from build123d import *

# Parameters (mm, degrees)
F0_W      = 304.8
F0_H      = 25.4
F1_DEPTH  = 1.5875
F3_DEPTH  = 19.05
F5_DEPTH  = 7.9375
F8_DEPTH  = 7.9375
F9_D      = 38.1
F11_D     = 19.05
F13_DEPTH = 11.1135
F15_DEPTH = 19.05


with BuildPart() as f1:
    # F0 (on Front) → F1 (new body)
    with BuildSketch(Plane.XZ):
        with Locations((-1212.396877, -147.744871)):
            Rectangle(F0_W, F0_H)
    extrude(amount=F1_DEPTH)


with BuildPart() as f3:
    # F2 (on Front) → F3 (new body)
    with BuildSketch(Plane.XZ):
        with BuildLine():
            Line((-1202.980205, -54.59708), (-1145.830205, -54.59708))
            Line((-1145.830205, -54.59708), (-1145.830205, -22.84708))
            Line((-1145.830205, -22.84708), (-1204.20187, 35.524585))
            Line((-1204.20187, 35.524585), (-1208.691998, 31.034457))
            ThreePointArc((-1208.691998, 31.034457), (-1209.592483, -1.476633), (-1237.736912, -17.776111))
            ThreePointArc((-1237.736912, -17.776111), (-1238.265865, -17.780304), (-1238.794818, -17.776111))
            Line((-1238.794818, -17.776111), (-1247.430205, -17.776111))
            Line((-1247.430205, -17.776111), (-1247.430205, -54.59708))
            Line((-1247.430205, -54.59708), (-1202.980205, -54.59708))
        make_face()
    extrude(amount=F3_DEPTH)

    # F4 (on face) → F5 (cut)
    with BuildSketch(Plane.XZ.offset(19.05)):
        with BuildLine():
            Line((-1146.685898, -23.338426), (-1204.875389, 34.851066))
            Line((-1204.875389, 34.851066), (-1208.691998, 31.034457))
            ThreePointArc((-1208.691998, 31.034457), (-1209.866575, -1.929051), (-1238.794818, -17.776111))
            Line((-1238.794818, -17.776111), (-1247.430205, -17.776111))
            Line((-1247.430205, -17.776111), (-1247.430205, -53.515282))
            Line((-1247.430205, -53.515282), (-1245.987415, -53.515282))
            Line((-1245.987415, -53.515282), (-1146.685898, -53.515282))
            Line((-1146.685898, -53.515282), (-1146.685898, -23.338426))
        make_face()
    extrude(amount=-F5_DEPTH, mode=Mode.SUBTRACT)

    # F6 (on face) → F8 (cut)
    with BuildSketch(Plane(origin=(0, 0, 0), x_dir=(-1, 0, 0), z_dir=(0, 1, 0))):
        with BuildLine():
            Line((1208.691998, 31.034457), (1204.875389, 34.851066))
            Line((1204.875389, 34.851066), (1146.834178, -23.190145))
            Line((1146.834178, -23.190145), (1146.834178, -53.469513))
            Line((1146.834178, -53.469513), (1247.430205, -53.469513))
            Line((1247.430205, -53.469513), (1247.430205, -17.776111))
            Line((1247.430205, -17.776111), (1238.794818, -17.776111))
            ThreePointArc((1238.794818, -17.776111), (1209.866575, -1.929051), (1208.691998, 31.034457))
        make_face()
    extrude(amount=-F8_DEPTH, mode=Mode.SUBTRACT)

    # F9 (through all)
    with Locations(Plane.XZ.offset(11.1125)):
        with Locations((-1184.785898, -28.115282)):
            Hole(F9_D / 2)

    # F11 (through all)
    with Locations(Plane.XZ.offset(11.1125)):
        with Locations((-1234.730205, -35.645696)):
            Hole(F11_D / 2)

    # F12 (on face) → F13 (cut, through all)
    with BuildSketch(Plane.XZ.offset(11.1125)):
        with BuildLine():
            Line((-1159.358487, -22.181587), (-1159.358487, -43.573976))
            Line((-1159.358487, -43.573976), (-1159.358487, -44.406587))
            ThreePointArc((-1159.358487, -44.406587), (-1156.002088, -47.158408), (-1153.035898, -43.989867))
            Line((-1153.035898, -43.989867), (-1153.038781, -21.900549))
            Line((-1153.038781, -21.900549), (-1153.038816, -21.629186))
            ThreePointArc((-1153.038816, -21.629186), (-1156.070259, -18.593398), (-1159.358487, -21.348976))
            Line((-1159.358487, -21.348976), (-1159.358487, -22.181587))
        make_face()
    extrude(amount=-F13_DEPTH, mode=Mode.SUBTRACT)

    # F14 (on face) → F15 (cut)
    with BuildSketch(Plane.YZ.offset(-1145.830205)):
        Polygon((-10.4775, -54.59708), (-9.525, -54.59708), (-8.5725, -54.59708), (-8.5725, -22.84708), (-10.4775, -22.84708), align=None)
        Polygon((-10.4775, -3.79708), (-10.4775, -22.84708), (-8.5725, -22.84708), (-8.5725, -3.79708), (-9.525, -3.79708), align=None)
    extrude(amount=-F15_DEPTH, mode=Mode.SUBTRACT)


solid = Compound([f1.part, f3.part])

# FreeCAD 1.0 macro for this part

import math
import FreeCAD as App
import Part
import Sketcher

V = App.Vector
Q = App.Units.Quantity


def add_polygon(sketch, points):
    """Adds a closed chain of lines whose ends are joined by coincident constraints."""
    first, n = sketch.GeometryCount, len(points)
    for a, b in zip(points, points[1:] + points[:1]):
        sketch.addGeometry(Part.LineSegment(App.Vector(*a, 0), App.Vector(*b, 0)), False)
    for i in range(n):
        sketch.addConstraint(Sketcher.Constraint("Coincident", first + i, 2, first + (i + 1) % n, 1))

doc = App.newDocument("Part")
body = doc.addObject("PartDesign::Body", "Body")

sketch1 = doc.addObject("Sketcher::SketchObject", "Sketch")
body.addObject(sketch1)
sketch1.AttachmentSupport = (doc.XZ_Plane, [""])
sketch1.MapMode = "FlatFace"
add_polygon(sketch1, [(-1364.796877, -135.044871), (-1364.796877, -160.444871), (-1059.996877, -160.444871), (-1059.996877, -135.044871)])
sketch1.addConstraint(Sketcher.Constraint("Vertical", 0))
sketch1.addConstraint(Sketcher.Constraint("Horizontal", 1))
sketch1.addConstraint(Sketcher.Constraint("Vertical", 2))
sketch1.addConstraint(Sketcher.Constraint("Horizontal", 3))
sketch1.addConstraint(Sketcher.Constraint("DistanceX", 1, 1, 1, 2, Q("12 in")))
sketch1.addConstraint(Sketcher.Constraint("DistanceY", 0, 2, 0, 1, Q("1 in")))
sketch1.addConstraint(Sketcher.Constraint("DistanceY", 0, 2, -1, 1, Q("160.444871 mm")))
sketch1.addConstraint(Sketcher.Constraint("DistanceX", 0, 2, -1, 1, Q("1364.796877 mm")))
pad1 = doc.addObject("PartDesign::Pad", "Pad")
body.addObject(pad1)
pad1.Profile = sketch1
pad1.Length = Q("0.0625 in")
body2 = doc.addObject("PartDesign::Body", "Body001")

sketch2 = doc.addObject("Sketcher::SketchObject", "Sketch001")
body2.addObject(sketch2)
sketch2.AttachmentSupport = (doc.getObject("XZ_Plane001"), [""])
sketch2.MapMode = "FlatFace"
sketch2.addGeometry(Part.LineSegment(V(-1145.830205, -54.59708, 0), V(-1145.830205, -22.84708, 0)), False)
sketch2.addGeometry(Part.LineSegment(V(-1145.830205, -22.84708, 0), V(-1204.20187, 35.524585, 0)), False)
sketch2.addGeometry(Part.LineSegment(V(-1204.20187, 35.524585, 0), V(-1208.691998, 31.034457, 0)), False)
sketch2.addGeometry(Part.ArcOfCircle(Part.Circle(V(-1238.265865, 15.585572, 0), V(0, 0, 1), 33.365876), math.radians(-89.091645), math.radians(27.581801)), False)
sketch2.addGeometry(Part.ArcOfCircle(Part.Circle(V(-1238.265865, 15.585885, 0), V(0, 0, 1), 33.366189), math.radians(-90.908346), math.radians(-89.091654)), False)
sketch2.addGeometry(Part.LineSegment(V(-1238.794818, -17.776111, 0), V(-1247.430205, -17.776111, 0)), False)
sketch2.addGeometry(Part.LineSegment(V(-1247.430205, -17.776111, 0), V(-1247.430205, -54.59708, 0)), False)
sketch2.addGeometry(Part.LineSegment(V(-1247.430205, -54.59708, 0), V(-1145.830205, -54.59708, 0)), False)
sketch2.addConstraint(Sketcher.Constraint("Coincident", 0, 2, 1, 1))
sketch2.addConstraint(Sketcher.Constraint("Coincident", 1, 2, 2, 1))
sketch2.addConstraint(Sketcher.Constraint("Coincident", 2, 2, 3, 2))
sketch2.addConstraint(Sketcher.Constraint("Coincident", 3, 1, 4, 2))
sketch2.addConstraint(Sketcher.Constraint("Coincident", 4, 1, 5, 1))
sketch2.addConstraint(Sketcher.Constraint("Coincident", 5, 2, 6, 1))
sketch2.addConstraint(Sketcher.Constraint("Coincident", 6, 2, 7, 1))
sketch2.addConstraint(Sketcher.Constraint("Coincident", 7, 2, 0, 1))
sketch2.addConstraint(Sketcher.Constraint("Vertical", 0))
sketch2.addConstraint(Sketcher.Constraint("Horizontal", 5))
sketch2.addConstraint(Sketcher.Constraint("Vertical", 6))
sketch2.addConstraint(Sketcher.Constraint("Horizontal", 7))
sketch2.addConstraint(Sketcher.Constraint("DistanceX", 7, 1, 7, 2, Q("4 in")))
sketch2.addConstraint(Sketcher.Constraint("DistanceY", 0, 1, 0, 2, Q("1.25 in")))
sketch2.addConstraint(Sketcher.Constraint("Distance", 1, Q("3.25 in")))
sketch2.addConstraint(Sketcher.Constraint("Distance", 2, Q("0.25 in")))
sketch2.addConstraint(Sketcher.Constraint("Radius", 4, Q("33.366189 mm")))
sketch2.addConstraint(Sketcher.Constraint("Radius", 3, Q("33.365876 mm")))
sketch2.addConstraint(Sketcher.Constraint("DistanceY", 6, 2, 6, 1, Q("36.820969 mm")))
sketch2.addConstraint(Sketcher.Constraint("DistanceX", 2, 2, -1, 1, Q("1208.691998 mm")))
sketch2.addConstraint(Sketcher.Constraint("DistanceY", 4, 3, 1, 2, Q("19.9387 mm")))
sketch2.addConstraint(Sketcher.Constraint("DistanceX", 5, 2, 5, 1, Q("8.635387 mm")))
sketch2.addConstraint(Sketcher.Constraint("DistanceY", -1, 1, 3, 3, Q("15.585572 mm")))
sketch2.addConstraint(Sketcher.Constraint("DistanceY", 0, 2, -1, 1, Q("22.84708 mm")))
sketch2.addConstraint(Sketcher.Constraint("DistanceX", 1, 2, -1, 1, Q("1204.20187 mm")))
sketch2.addConstraint(Sketcher.Constraint("DistanceY", 3, 1, -1, 1, Q("17.776111 mm")))
pad2 = doc.addObject("PartDesign::Pad", "Pad001")
body2.addObject(pad2)
pad2.Profile = sketch2
pad2.Length = Q("0.75 in")

sketch3 = doc.addObject("Sketcher::SketchObject", "Sketch002")
body2.addObject(sketch3)
sketch3.AttachmentSupport = (doc.getObject("XZ_Plane001"), [""])
sketch3.MapMode = "FlatFace"
sketch3.AttachmentOffset = App.Placement(V(0, 0, 0.75 * 25.4), App.Rotation())
sketch3.addGeometry(Part.LineSegment(V(-1146.685898, -23.338426, 0), V(-1204.875389, 34.851066, 0)), False)
sketch3.addGeometry(Part.LineSegment(V(-1204.875389, 34.851066, 0), V(-1208.691998, 31.034457, 0)), False)
sketch3.addGeometry(Part.ArcOfCircle(Part.Circle(V(-1238.265865, 15.585571, 0), V(0, 0, 1), 33.365876), math.radians(-90.908355), math.radians(27.581802)), False)
sketch3.addGeometry(Part.LineSegment(V(-1238.794818, -17.776111, 0), V(-1247.430205, -17.776111, 0)), False)
sketch3.addGeometry(Part.LineSegment(V(-1247.430205, -17.776111, 0), V(-1247.430205, -53.515282, 0)), False)
sketch3.addGeometry(Part.LineSegment(V(-1247.430205, -53.515282, 0), V(-1146.685898, -53.515282, 0)), False)
sketch3.addGeometry(Part.LineSegment(V(-1146.685898, -53.515282, 0), V(-1146.685898, -23.338426, 0)), False)
sketch3.addConstraint(Sketcher.Constraint("Coincident", 0, 2, 1, 1))
sketch3.addConstraint(Sketcher.Constraint("Coincident", 1, 2, 2, 2))
sketch3.addConstraint(Sketcher.Constraint("Coincident", 2, 1, 3, 1))
sketch3.addConstraint(Sketcher.Constraint("Coincident", 3, 2, 4, 1))
sketch3.addConstraint(Sketcher.Constraint("Coincident", 4, 2, 5, 1))
sketch3.addConstraint(Sketcher.Constraint("Coincident", 5, 2, 6, 1))
sketch3.addConstraint(Sketcher.Constraint("Coincident", 6, 2, 0, 1))
sketch3.addConstraint(Sketcher.Constraint("Horizontal", 3))
sketch3.addConstraint(Sketcher.Constraint("Vertical", 4))
sketch3.addConstraint(Sketcher.Constraint("Horizontal", 5))
sketch3.addConstraint(Sketcher.Constraint("Vertical", 6))
sketch3.addConstraint(Sketcher.Constraint("Perpendicular", 0, 1))
sketch3.addConstraint(Sketcher.Constraint("Angle", 0, Q("135 deg")))
sketch3.addConstraint(Sketcher.Constraint("Distance", 1, Q("0.2125 in")))
sketch3.addConstraint(Sketcher.Constraint("Radius", 2, Q("33.365876 mm")))
sketch3.addConstraint(Sketcher.Constraint("DistanceY", 4, 2, 4, 1, Q("35.739171 mm")))
sketch3.addConstraint(Sketcher.Constraint("DistanceX", 1, 2, -1, 1, Q("1208.691998 mm")))
sketch3.addConstraint(Sketcher.Constraint("DistanceX", 5, 2, -1, 1, Q("1146.685898 mm")))
sketch3.addConstraint(Sketcher.Constraint("DistanceX", 3, 2, 3, 1, Q("8.635387 mm")))
sketch3.addConstraint(Sketcher.Constraint("DistanceX", 5, 1, 5, 2, Q("100.744307 mm")))
sketch3.addConstraint(Sketcher.Constraint("DistanceY", 6, 1, 6, 2, Q("30.176856 mm")))
sketch3.addConstraint(Sketcher.Constraint("DistanceY", -1, 1, 2, 3, Q("15.585571 mm")))
pocket1 = doc.addObject("PartDesign::Pocket", "Pocket")
body2.addObject(pocket1)
pocket1.Profile = sketch3
pocket1.Length = Q("0.3125 in")

sketch4 = doc.addObject("Sketcher::SketchObject", "Sketch003")
body2.addObject(sketch4)
sketch4.AttachmentSupport = (doc.getObject("XZ_Plane001"), [""])
sketch4.MapMode = "FlatFace"
sketch4.addGeometry(Part.LineSegment(V(-1208.691998, 31.034457, 0), V(-1204.875389, 34.851066, 0)), False)
sketch4.addGeometry(Part.LineSegment(V(-1204.875389, 34.851066, 0), V(-1146.834178, -23.190145, 0)), False)
sketch4.addGeometry(Part.LineSegment(V(-1146.834178, -23.190145, 0), V(-1146.834178, -53.469513, 0)), False)
sketch4.addGeometry(Part.LineSegment(V(-1146.834178, -53.469513, 0), V(-1247.430205, -53.469513, 0)), False)
sketch4.addGeometry(Part.LineSegment(V(-1247.430205, -53.469513, 0), V(-1247.430205, -17.776111, 0)), False)
sketch4.addGeometry(Part.LineSegment(V(-1247.430205, -17.776111, 0), V(-1238.794818, -17.776111, 0)), False)
sketch4.addGeometry(Part.ArcOfCircle(Part.Circle(V(-1238.265865, 15.585571, 0), V(0, 0, 1), 33.365876), math.radians(-90.908355), math.radians(27.581802)), False)
sketch4.addConstraint(Sketcher.Constraint("Coincident", 0, 2, 1, 1))
sketch4.addConstraint(Sketcher.Constraint("Coincident", 1, 2, 2, 1))
sketch4.addConstraint(Sketcher.Constraint("Coincident", 2, 2, 3, 1))
sketch4.addConstraint(Sketcher.Constraint("Coincident", 3, 2, 4, 1))
sketch4.addConstraint(Sketcher.Constraint("Coincident", 4, 2, 5, 1))
sketch4.addConstraint(Sketcher.Constraint("Coincident", 5, 2, 6, 1))
sketch4.addConstraint(Sketcher.Constraint("Coincident", 6, 2, 0, 1))
sketch4.addConstraint(Sketcher.Constraint("Vertical", 2))
sketch4.addConstraint(Sketcher.Constraint("Horizontal", 3))
sketch4.addConstraint(Sketcher.Constraint("Vertical", 4))
sketch4.addConstraint(Sketcher.Constraint("Horizontal", 5))
sketch4.addConstraint(Sketcher.Constraint("Perpendicular", 0, 1))
sketch4.addConstraint(Sketcher.Constraint("Angle", 0, Q("45 deg")))
sketch4.addConstraint(Sketcher.Constraint("Distance", 0, Q("0.2125 in")))
sketch4.addConstraint(Sketcher.Constraint("Radius", 6, Q("33.365876 mm")))
sketch4.addConstraint(Sketcher.Constraint("DistanceX", 6, 2, -1, 1, Q("1208.691998 mm")))
sketch4.addConstraint(Sketcher.Constraint("DistanceY", 1, 2, 6, 2, Q("54.224602 mm")))
sketch4.addConstraint(Sketcher.Constraint("DistanceX", 3, 2, 3, 1, Q("100.596027 mm")))
sketch4.addConstraint(Sketcher.Constraint("DistanceX", 5, 1, 5, 2, Q("8.635387 mm")))
sketch4.addConstraint(Sketcher.Constraint("DistanceY", 2, 2, 2, 1, Q("30.279368 mm")))
sketch4.addConstraint(Sketcher.Constraint("DistanceY", 4, 1, 4, 2, Q("35.693402 mm")))
sketch4.addConstraint(Sketcher.Constraint("DistanceY", -1, 1, 6, 3, Q("15.585571 mm")))
pocket2 = doc.addObject("PartDesign::Pocket", "Pocket001")
body2.addObject(pocket2)
pocket2.Profile = sketch4
pocket2.Length = Q("0.3125 in")
pocket2.Reversed = True

sketch5 = doc.addObject("Sketcher::SketchObject", "Sketch004")
body2.addObject(sketch5)
sketch5.AttachmentSupport = (doc.getObject("XZ_Plane001"), [""])
sketch5.MapMode = "FlatFace"
sketch5.AttachmentOffset = App.Placement(V(0, 0, 0.4375 * 25.4), App.Rotation())
sketch5.addGeometry(Part.Circle(V(-1184.785898, -28.115282, 0), V(0, 0, 1), 19.05), False)
sketch5.addConstraint(Sketcher.Constraint("Diameter", 0, Q("1.5 in")))
sketch5.addConstraint(Sketcher.Constraint("DistanceX", 0, 3, -1, 1, Q("1184.785898 mm")))
sketch5.addConstraint(Sketcher.Constraint("DistanceY", 0, 3, -1, 1, Q("28.115282 mm")))
doc.recompute()
hole = doc.addObject("PartDesign::Hole", "Hole")
body2.addObject(hole)
hole.Profile = sketch5
hole.ThreadType = "None"
hole.Diameter = Q("1.5 in")
hole.DepthType = "ThroughAll"

sketch6 = doc.addObject("Sketcher::SketchObject", "Sketch005")
body2.addObject(sketch6)
sketch6.AttachmentSupport = (doc.getObject("XZ_Plane001"), [""])
sketch6.MapMode = "FlatFace"
sketch6.AttachmentOffset = App.Placement(V(0, 0, 0.4375 * 25.4), App.Rotation())
sketch6.addGeometry(Part.Circle(V(-1234.730205, -35.645696, 0), V(0, 0, 1), 9.525), False)
sketch6.addConstraint(Sketcher.Constraint("Diameter", 0, Q("0.75 in")))
sketch6.addConstraint(Sketcher.Constraint("DistanceX", 0, 3, -1, 1, Q("1234.730205 mm")))
sketch6.addConstraint(Sketcher.Constraint("DistanceY", 0, 3, -1, 1, Q("35.645696 mm")))
doc.recompute()
hole2 = doc.addObject("PartDesign::Hole", "Hole001")
body2.addObject(hole2)
hole2.Profile = sketch6
hole2.ThreadType = "None"
hole2.Diameter = Q("0.75 in")
hole2.DepthType = "ThroughAll"

sketch7 = doc.addObject("Sketcher::SketchObject", "Sketch006")
body2.addObject(sketch7)
sketch7.AttachmentSupport = (doc.getObject("XZ_Plane001"), [""])
sketch7.MapMode = "FlatFace"
sketch7.AttachmentOffset = App.Placement(V(0, 0, 0.4375 * 25.4), App.Rotation())
sketch7.addGeometry(Part.ArcOfCircle(Part.Circle(V(-1156.210898, -43.990282, 0), V(0, 0, 1), 3.175), math.radians(-172.465696), math.radians(0.007484)), False)
sketch7.addGeometry(Part.LineSegment(V(-1153.035898, -43.989867, 0), V(-1153.038781, -21.900549, 0)), False)
sketch7.addGeometry(Part.LineSegment(V(-1153.038781, -21.900549, 0), V(-1153.038816, -21.629186, 0)), False)
sketch7.addGeometry(Part.ArcOfCircle(Part.Circle(V(-1156.210898, -21.765282, 0), V(0, 0, 1), 3.175), math.radians(2.456727), math.radians(172.465685)), False)
sketch7.addGeometry(Part.LineSegment(V(-1159.358487, -21.348976, 0), V(-1159.358487, -44.406587, 0)), False)
sketch7.addConstraint(Sketcher.Constraint("Tangent", 0, 2, 1, 1))
sketch7.addConstraint(Sketcher.Constraint("Coincident", 1, 2, 2, 1))
sketch7.addConstraint(Sketcher.Constraint("Coincident", 2, 2, 3, 1))
sketch7.addConstraint(Sketcher.Constraint("Coincident", 3, 2, 4, 1))
sketch7.addConstraint(Sketcher.Constraint("Coincident", 4, 2, 0, 1))
sketch7.addConstraint(Sketcher.Constraint("Vertical", 4))
sketch7.addConstraint(Sketcher.Constraint("Equal", 0, 3))
sketch7.addConstraint(Sketcher.Constraint("Parallel", 1, 2))
sketch7.addConstraint(Sketcher.Constraint("Vertical", 0, 3, 3, 3))
sketch7.addConstraint(Sketcher.Constraint("Radius", 0, Q("0.125 in")))
sketch7.addConstraint(Sketcher.Constraint("DistanceY", 0, 3, 3, 3, Q("0.875 in")))
sketch7.addConstraint(Sketcher.Constraint("DistanceY", 4, 2, 4, 1, Q("23.057611 mm")))
sketch7.addConstraint(Sketcher.Constraint("DistanceX", 0, 3, -1, 1, Q("1156.210898 mm")))
sketch7.addConstraint(Sketcher.Constraint("Distance", 1, Q("22.089318 mm")))
sketch7.addConstraint(Sketcher.Constraint("DistanceY", 0, 3, -1, 1, Q("43.990282 mm")))
sketch7.addConstraint(Sketcher.Constraint("DistanceX", 1, 2, -1, 1, Q("1153.038781 mm")))
pocket3 = doc.addObject("PartDesign::Pocket", "Pocket002")
body2.addObject(pocket3)
pocket3.Profile = sketch7
pocket3.Type = "ThroughAll"

sketch8 = doc.addObject("Sketcher::SketchObject", "Sketch007")
body2.addObject(sketch8)
sketch8.AttachmentSupport = (doc.getObject("YZ_Plane001"), [""])
sketch8.MapMode = "FlatFace"
sketch8.AttachmentOffset = App.Placement(V(0, 0, -1145.830205), App.Rotation())
add_polygon(sketch8, [(-10.4775, -54.59708), (-8.5725, -54.59708), (-8.5725, -3.79708), (-10.4775, -3.79708)])
sketch8.addConstraint(Sketcher.Constraint("Horizontal", 0))
sketch8.addConstraint(Sketcher.Constraint("Vertical", 1))
sketch8.addConstraint(Sketcher.Constraint("Horizontal", 2))
sketch8.addConstraint(Sketcher.Constraint("Vertical", 3))
sketch8.addConstraint(Sketcher.Constraint("DistanceY", 1, 1, 1, 2, Q("2 in")))
sketch8.addConstraint(Sketcher.Constraint("DistanceX", 0, 1, 0, 2, Q("0.075 in")))
sketch8.addConstraint(Sketcher.Constraint("DistanceX", 0, 2, -1, 1, Q("0.3375 in")))
sketch8.addConstraint(Sketcher.Constraint("DistanceY", 0, 2, -1, 1, Q("54.59708 mm")))
pocket4 = doc.addObject("PartDesign::Pocket", "Pocket003")
body2.addObject(pocket4)
pocket4.Profile = sketch8
pocket4.Length = Q("0.75 in")

doc.recompute()
